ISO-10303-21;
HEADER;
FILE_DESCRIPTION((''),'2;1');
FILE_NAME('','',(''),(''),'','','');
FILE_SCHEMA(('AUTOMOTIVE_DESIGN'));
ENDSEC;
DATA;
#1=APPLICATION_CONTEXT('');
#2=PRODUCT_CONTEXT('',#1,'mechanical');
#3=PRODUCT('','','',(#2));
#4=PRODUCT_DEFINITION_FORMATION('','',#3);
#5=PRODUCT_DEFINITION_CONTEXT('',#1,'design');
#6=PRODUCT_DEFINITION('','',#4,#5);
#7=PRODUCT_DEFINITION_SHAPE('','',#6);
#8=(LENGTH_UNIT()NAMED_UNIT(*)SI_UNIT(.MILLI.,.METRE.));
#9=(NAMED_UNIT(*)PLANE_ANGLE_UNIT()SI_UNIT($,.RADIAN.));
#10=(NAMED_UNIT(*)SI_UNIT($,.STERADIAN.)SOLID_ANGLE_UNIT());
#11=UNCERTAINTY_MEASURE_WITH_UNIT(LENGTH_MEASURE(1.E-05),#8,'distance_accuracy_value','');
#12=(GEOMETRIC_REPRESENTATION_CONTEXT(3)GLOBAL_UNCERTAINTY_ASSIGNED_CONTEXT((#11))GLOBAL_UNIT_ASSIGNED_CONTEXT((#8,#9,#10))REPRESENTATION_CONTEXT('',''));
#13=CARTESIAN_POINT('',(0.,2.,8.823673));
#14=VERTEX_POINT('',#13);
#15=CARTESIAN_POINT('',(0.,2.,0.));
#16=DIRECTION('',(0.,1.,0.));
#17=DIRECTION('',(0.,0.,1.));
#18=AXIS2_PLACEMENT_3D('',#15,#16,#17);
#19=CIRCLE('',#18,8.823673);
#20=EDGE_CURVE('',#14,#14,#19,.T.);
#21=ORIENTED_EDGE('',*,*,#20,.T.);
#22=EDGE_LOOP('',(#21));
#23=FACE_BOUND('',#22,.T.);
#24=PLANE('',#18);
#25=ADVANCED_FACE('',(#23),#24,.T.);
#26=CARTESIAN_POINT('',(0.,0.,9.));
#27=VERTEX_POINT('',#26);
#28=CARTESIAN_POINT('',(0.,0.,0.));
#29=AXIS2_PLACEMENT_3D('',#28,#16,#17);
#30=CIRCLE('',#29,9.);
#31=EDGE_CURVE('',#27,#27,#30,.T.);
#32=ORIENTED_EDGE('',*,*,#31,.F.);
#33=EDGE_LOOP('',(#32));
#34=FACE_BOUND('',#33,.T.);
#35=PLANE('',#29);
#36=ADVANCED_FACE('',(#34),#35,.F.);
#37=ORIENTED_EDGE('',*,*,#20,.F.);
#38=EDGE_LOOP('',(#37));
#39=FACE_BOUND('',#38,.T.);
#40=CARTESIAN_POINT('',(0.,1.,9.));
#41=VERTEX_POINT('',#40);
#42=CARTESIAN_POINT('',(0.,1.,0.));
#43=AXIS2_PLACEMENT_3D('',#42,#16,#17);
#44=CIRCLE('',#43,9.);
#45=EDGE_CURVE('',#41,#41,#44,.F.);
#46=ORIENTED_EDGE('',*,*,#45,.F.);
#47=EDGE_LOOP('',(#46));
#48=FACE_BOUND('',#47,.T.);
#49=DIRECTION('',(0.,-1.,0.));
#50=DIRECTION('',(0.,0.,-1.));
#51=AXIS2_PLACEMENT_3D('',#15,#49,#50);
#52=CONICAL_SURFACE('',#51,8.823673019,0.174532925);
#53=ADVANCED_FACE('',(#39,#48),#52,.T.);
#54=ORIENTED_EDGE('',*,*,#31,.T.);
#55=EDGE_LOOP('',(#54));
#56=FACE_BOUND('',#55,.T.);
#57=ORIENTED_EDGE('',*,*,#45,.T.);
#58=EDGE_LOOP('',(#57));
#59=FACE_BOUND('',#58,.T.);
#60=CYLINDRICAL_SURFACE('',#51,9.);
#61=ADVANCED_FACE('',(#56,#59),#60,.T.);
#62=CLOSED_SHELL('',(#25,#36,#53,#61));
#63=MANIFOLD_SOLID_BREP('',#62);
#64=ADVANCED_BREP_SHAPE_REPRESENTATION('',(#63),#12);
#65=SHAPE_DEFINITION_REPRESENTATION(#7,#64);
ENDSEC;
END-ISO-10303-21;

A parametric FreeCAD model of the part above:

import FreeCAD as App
import Part
import Sketcher

V = App.Vector


def edges_at(feature, points):
    """Names of the edges that pass closest to the given points."""
    edges = feature.Shape.Edges
    near = lambda p: min(range(len(edges)), key=lambda i: edges[i].distToShape(Part.Vertex(*p))[0])
    return sorted({f"Edge{near(p) + 1}" for p in points})

doc = App.newDocument("Part")
body = doc.addObject("PartDesign::Body", "Body")

# Sketch on XZ plane
sketch1 = body.newObject("Sketcher::SketchObject", "Sketch")
sketch1.AttachmentSupport = (doc.getObject("XZ_Plane"), [""])
sketch1.MapMode = "FlatFace"
sketch1.addGeometry(Part.Circle(V(0, 0, 0), V(0, 0, 1), 9), False)
sketch1.addConstraint([
    Sketcher.Constraint("Coincident", 0, 3, -1, 1),
    Sketcher.Constraint("Diameter", 0, 18.0),
])
pad1 = body.newObject("PartDesign::Pad", "Pad")
pad1.Profile = sketch1
pad1.Length = 2
pad1.Reversed = True
doc.recompute()

chamfer = body.newObject("PartDesign::Chamfer", "Chamfer")
chamfer.Base = (pad1, edges_at(pad1, [(0, 2, -9)]))
chamfer.ChamferType = "Two distances"
chamfer.Size = 1
chamfer.Size2 = 0.176327

doc.recompute()
